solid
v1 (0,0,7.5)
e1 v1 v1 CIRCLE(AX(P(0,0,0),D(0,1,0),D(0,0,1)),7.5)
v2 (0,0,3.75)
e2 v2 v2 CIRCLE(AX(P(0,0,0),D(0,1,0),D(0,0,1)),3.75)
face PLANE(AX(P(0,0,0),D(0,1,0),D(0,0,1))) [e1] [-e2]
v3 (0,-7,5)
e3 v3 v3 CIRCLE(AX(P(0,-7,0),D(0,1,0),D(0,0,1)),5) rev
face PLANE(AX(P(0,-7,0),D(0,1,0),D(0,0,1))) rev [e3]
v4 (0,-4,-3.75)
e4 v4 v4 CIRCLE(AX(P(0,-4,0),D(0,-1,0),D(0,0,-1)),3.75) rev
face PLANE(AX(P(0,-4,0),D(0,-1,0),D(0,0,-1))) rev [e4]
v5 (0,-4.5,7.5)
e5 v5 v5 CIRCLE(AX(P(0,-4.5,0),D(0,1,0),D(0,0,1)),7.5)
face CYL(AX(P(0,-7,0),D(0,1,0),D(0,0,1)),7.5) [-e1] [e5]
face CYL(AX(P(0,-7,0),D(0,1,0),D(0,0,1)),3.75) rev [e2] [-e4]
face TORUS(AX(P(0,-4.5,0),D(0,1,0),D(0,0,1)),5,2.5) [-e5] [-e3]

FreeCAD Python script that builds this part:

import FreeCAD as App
import Part
import Sketcher


def edges_at(feature, points):
    """Names of the edges that pass closest to the given points."""
    edges = feature.Shape.Edges
    near = lambda p: min(range(len(edges)), key=lambda i: edges[i].distToShape(Part.Vertex(*p))[0])
    return sorted({f"Edge{near(p) + 1}" for p in points})

doc = App.newDocument("Part")
params = doc.addObject("Spreadsheet::Sheet", "Params")
for row, (alias, value) in enumerate([
    ("sketch1_diameter", "15 mm"),
    ("sketch1_diameter2", "7.5 mm"),
    ("pad1_length", "7 mm"),
    ("sketch2_diameter", "12 mm"),
    ("pad2_length", "3 mm"),
    ("fillet_radius", "2.5 mm"),
], start=1):
    params.set(f"A{row}", alias)
    params.set(f"B{row}", "=" + value)
    params.setAlias(f"B{row}", alias)

body = doc.addObject("PartDesign::Body", "Body")

sketch1 = body.newObject("Sketcher::SketchObject", "Sketch")
sketch1.AttachmentSupport = (doc.getObject("XZ_Plane"), [""])
sketch1.MapMode = "FlatFace"
sketch1.addGeometry([
    Part.Circle(App.Vector(0, 0, 0), App.Vector(0, 0, 1), 7.5),
    Part.Circle(App.Vector(0, 0, 0), App.Vector(0, 0, 1), 3.75),
], False)
sketch1.addConstraint([
    Sketcher.Constraint("Coincident", 0, 3, -1, 1),
    Sketcher.Constraint("Coincident", 1, 3, -1, 1),
    Sketcher.Constraint("Diameter", 0, 15.0),
    Sketcher.Constraint("Diameter", 1, 7.5),
])
sketch1.setExpression("Constraints[2]", "Params.sketch1_diameter")
sketch1.setExpression("Constraints[3]", "Params.sketch1_diameter2")
pad1 = body.newObject("PartDesign::Pad", "Pad")
pad1.Profile = sketch1
pad1.setExpression("Length", "Params.pad1_length")

sketch2 = body.newObject("Sketcher::SketchObject", "Sketch001")
sketch2.AttachmentSupport = (doc.getObject("XZ_Plane"), [""])
sketch2.MapMode = "FlatFace"
sketch2.AttachmentOffset = App.Placement(App.Vector(0, 0, 7), App.Rotation())
sketch2.addGeometry(Part.Circle(App.Vector(0, 0, 0), App.Vector(0, 0, 1), 6), False)
sketch2.addConstraint([
    Sketcher.Constraint("Coincident", 0, 3, -1, 1),
    Sketcher.Constraint("Diameter", 0, 12.0),
])
sketch2.setExpression("Constraints[1]", "Params.sketch2_diameter")
pad2 = body.newObject("PartDesign::Pad", "Pad001")
pad2.Profile = sketch2
pad2.setExpression("Length", "Params.pad2_length")
pad2.Reversed = True
doc.recompute()

fillet = body.newObject("PartDesign::Fillet", "Fillet")
fillet.Base = (pad2, edges_at(pad2, [(-7.5, -7, 0)]))
fillet.setExpression("Radius", "Params.fillet_radius")

doc.recompute()
